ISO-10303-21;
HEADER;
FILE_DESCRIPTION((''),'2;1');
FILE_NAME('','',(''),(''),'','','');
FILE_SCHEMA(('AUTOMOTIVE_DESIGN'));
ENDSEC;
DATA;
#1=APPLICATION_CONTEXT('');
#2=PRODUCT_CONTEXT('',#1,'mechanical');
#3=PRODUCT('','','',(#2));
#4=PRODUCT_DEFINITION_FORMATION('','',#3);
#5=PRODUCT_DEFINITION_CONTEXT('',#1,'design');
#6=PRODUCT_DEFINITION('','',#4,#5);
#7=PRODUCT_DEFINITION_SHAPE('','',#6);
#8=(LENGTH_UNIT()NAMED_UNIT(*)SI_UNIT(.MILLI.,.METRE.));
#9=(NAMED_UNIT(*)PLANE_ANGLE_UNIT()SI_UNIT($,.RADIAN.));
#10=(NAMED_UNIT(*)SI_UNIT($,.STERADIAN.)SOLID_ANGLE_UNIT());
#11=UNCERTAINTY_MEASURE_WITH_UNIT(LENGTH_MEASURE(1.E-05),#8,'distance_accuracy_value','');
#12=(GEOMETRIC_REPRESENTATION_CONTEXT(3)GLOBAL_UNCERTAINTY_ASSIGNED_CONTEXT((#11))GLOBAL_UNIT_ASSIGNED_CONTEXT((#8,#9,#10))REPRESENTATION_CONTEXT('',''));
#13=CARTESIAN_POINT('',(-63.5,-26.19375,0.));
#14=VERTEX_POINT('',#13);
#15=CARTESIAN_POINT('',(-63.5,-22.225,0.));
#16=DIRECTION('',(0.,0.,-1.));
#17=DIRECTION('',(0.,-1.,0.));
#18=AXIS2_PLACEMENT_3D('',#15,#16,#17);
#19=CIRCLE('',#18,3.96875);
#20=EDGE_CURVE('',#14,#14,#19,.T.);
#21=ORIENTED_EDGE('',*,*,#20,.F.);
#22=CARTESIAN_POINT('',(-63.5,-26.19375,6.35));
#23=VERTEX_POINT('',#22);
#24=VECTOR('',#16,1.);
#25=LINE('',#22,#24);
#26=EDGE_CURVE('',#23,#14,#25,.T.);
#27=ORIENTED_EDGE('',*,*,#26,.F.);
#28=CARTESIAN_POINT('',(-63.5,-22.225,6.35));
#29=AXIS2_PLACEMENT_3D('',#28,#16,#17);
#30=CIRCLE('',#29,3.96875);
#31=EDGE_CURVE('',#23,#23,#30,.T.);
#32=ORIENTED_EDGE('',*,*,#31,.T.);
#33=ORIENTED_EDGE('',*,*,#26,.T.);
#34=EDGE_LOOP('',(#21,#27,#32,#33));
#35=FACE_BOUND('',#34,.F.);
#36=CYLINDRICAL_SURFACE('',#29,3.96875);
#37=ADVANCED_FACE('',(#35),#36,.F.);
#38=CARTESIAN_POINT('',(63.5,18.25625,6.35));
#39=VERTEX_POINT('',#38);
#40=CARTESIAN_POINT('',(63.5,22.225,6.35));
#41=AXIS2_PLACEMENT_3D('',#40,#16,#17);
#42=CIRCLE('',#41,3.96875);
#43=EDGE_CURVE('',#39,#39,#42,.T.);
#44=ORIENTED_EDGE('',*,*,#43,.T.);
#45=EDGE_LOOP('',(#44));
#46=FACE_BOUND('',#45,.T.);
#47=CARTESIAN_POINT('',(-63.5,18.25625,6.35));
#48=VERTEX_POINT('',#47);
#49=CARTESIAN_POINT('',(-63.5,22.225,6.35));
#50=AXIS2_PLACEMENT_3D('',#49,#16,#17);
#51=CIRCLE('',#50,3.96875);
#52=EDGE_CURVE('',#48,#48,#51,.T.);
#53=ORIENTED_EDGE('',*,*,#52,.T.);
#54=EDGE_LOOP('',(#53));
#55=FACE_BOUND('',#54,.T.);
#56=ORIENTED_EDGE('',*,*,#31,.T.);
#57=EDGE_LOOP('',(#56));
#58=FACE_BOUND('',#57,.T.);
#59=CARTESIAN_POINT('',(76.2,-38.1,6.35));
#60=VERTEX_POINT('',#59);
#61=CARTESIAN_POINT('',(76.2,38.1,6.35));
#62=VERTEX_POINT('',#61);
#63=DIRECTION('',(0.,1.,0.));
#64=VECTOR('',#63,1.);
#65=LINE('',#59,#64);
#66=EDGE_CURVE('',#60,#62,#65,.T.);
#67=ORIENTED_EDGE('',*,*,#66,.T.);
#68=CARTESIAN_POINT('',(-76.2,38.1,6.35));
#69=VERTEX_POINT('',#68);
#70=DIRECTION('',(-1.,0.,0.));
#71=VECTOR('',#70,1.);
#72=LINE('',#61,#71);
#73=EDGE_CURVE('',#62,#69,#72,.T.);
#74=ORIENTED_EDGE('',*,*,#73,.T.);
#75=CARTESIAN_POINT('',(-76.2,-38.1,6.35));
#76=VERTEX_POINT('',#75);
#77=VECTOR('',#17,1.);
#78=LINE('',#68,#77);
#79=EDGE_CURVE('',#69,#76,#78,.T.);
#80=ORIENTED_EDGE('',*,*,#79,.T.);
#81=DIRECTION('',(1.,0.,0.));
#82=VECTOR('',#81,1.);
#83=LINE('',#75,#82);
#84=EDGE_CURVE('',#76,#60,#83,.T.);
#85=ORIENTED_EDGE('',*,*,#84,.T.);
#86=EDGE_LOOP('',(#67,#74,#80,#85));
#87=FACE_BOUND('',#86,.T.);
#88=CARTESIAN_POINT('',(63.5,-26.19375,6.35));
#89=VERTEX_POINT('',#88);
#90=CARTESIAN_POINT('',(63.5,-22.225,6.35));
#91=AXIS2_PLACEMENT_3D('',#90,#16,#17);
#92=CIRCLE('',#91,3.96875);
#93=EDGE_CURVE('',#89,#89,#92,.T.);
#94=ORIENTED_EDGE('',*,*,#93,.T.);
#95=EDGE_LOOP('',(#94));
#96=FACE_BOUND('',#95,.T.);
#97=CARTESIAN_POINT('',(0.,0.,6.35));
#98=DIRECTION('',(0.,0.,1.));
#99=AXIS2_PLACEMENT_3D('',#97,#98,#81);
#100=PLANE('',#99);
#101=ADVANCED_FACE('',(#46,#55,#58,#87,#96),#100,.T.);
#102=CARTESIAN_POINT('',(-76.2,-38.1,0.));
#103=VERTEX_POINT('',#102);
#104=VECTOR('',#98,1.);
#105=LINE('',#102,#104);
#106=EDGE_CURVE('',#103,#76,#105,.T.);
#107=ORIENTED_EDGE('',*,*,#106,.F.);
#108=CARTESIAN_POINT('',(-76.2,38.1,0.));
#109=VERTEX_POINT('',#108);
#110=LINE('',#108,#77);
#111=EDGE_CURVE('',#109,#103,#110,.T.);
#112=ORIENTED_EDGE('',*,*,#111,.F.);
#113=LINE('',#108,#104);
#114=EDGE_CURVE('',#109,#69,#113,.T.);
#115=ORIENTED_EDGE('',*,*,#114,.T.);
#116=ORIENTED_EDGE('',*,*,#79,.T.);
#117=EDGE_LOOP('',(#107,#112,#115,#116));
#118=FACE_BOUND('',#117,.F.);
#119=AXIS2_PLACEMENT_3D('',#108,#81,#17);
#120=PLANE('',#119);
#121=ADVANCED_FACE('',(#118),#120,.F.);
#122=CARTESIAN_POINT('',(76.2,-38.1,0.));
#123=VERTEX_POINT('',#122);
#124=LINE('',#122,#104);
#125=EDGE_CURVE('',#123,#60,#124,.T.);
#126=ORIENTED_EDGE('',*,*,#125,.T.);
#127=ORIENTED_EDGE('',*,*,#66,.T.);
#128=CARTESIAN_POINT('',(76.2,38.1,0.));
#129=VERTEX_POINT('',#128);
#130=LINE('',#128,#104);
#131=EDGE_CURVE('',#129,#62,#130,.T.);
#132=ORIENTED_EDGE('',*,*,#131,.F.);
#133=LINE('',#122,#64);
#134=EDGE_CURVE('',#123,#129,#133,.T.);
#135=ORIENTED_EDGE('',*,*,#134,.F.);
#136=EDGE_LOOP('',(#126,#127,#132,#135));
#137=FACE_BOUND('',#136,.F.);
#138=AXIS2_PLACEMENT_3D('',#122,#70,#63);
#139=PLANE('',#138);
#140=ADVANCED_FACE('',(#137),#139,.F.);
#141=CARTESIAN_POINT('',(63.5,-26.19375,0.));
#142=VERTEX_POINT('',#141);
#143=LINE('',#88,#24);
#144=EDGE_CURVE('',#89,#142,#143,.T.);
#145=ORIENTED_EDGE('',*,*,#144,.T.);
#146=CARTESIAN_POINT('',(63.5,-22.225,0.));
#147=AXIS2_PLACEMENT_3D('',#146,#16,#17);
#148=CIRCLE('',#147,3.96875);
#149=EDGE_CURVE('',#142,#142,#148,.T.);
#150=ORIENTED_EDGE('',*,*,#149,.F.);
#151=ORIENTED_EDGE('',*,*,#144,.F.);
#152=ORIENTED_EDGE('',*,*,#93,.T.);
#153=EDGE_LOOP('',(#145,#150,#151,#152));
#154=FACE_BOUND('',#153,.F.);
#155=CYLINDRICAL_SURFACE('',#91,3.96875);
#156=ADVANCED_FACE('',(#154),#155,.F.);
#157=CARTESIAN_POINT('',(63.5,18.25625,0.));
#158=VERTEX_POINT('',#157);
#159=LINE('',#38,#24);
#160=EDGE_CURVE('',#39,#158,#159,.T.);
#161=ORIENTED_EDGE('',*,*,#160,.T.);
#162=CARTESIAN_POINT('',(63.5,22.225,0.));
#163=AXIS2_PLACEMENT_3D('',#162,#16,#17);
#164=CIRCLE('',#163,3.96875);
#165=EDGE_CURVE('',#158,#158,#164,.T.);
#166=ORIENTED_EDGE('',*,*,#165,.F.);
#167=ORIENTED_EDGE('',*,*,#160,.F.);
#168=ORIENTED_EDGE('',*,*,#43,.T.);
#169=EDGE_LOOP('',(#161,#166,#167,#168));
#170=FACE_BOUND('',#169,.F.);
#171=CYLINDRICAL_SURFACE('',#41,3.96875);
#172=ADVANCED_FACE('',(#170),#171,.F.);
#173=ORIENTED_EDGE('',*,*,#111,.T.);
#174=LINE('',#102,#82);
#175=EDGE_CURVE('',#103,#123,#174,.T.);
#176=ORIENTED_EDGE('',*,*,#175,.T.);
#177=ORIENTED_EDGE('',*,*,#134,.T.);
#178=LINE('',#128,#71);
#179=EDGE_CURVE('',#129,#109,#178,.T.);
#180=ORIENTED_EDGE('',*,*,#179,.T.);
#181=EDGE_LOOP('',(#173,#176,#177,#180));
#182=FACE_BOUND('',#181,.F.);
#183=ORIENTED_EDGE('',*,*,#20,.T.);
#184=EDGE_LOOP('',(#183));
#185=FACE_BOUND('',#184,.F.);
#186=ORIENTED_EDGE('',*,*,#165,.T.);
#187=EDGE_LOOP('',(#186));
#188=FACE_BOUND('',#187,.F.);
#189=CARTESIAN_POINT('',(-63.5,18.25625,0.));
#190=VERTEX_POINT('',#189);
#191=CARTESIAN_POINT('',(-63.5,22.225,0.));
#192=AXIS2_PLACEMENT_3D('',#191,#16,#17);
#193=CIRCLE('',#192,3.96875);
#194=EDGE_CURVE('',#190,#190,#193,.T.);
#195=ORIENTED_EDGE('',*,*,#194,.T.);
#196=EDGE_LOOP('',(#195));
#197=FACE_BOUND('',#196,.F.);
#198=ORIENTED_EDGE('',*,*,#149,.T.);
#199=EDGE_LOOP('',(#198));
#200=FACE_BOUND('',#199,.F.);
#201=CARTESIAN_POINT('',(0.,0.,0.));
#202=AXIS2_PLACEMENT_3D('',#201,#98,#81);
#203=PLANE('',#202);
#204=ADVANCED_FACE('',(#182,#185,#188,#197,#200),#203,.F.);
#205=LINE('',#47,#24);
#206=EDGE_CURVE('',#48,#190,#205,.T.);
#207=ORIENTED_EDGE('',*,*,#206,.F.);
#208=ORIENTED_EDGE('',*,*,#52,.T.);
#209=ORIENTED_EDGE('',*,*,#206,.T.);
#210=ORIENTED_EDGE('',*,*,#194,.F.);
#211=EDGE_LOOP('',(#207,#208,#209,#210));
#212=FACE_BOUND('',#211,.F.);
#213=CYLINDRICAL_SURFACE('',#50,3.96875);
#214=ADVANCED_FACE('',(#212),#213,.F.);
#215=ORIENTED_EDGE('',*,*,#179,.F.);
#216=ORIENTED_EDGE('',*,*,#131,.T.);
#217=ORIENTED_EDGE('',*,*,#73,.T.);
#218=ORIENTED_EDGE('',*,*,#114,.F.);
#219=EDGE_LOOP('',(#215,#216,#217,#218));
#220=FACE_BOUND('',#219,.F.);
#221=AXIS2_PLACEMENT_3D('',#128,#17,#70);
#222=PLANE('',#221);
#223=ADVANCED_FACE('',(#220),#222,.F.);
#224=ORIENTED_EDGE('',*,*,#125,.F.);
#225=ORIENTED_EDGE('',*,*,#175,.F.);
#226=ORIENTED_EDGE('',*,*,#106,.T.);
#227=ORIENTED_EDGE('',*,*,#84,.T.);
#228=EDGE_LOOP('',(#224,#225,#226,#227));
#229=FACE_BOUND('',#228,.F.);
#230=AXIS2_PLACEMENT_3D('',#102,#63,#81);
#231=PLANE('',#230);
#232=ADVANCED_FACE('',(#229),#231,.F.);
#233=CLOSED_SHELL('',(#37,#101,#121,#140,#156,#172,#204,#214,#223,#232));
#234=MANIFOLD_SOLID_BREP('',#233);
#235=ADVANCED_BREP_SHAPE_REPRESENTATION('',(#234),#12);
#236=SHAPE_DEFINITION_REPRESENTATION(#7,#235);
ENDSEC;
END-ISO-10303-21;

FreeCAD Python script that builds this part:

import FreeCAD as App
import Part
import Sketcher

V = App.Vector
Q = App.Units.Quantity

doc = App.newDocument("Part")
body = doc.addObject("PartDesign::Body", "Body")

sketch1 = body.newObject("Sketcher::SketchObject", "Sketch")
sketch1.AttachmentSupport = (doc.getObject("XY_Plane"), [""])
sketch1.MapMode = "FlatFace"
sketch1.addGeometry([
    Part.LineSegment(V(-76, 38, 0), V(-76, -38, 0)),
    Part.LineSegment(V(-76, -38, 0), V(76, -38, 0)),
    Part.LineSegment(V(76, -38, 0), V(76, 38, 0)),
    Part.LineSegment(V(76, 38, 0), V(-76, 38, 0)),
], False)
sketch1.addConstraint([
    Sketcher.Constraint("Coincident", 0, 2, 1, 1),
    Sketcher.Constraint("Coincident", 1, 2, 2, 1),
    Sketcher.Constraint("Coincident", 2, 2, 3, 1),
    Sketcher.Constraint("Coincident", 3, 2, 0, 1),
    Sketcher.Constraint("Vertical", 0),
    Sketcher.Constraint("Horizontal", 1),
    Sketcher.Constraint("Vertical", 2),
    Sketcher.Constraint("Horizontal", 3),
    Sketcher.Constraint("Symmetric", 0, 2, 2, 2, -1, 1),
    Sketcher.Constraint("DistanceX", 1, 1, 1, 2, Q("6 in")),
    Sketcher.Constraint("DistanceY", 0, 2, 0, 1, Q("3 in")),
])
pad1 = body.newObject("PartDesign::Pad", "Pad")
pad1.Profile = sketch1
pad1.Length = Q("0.25 in")

sketch2 = body.newObject("Sketcher::SketchObject", "Sketch001")
sketch2.AttachmentSupport = (doc.getObject("XY_Plane"), [""])
sketch2.MapMode = "FlatFace"
sketch2.AttachmentOffset = App.Placement(V(0, 0, 0.25 * 25.4), App.Rotation())
sketch2.addGeometry([
    Part.Circle(V(-63.5, 22.2, 0), V(0, 0, 1), 4),
    Part.Circle(V(-63.5, -22.2, 0), V(0, 0, 1), 4),
    Part.Circle(V(63.5, -22.2, 0), V(0, 0, 1), 4),
    Part.Circle(V(63.5, 22.2, 0), V(0, 0, 1), 4),
], False)
sketch2.addConstraint([
    Sketcher.Constraint("Equal", 0, 1),
    Sketcher.Constraint("Equal", 1, 2),
    Sketcher.Constraint("Equal", 2, 3),
    Sketcher.Constraint("Symmetric", 0, 3, 2, 3, -1, 1),
    Sketcher.Constraint("Symmetric", 1, 3, 3, 3, -1, 1),
    Sketcher.Constraint("Symmetric", 1, 3, 2, 3, -2),
    Sketcher.Constraint("Diameter", 0, Q("0.3125 in")),
    Sketcher.Constraint("DistanceX", 1, 3, 2, 3, Q("5 in")),
    Sketcher.Constraint("DistanceY", 1, 3, 0, 3, Q("1.75 in")),
])
doc.recompute()
hole = body.newObject("PartDesign::Hole", "Hole")
hole.Profile = sketch2
hole.ThreadType = "None"
hole.Diameter = Q("0.3125 in")
hole.DepthType = "Dimension"
hole.Depth = Q("0.75 in")
hole.DrillPoint = "Angled"
hole.DrillPointAngle = 118

doc.recompute()
